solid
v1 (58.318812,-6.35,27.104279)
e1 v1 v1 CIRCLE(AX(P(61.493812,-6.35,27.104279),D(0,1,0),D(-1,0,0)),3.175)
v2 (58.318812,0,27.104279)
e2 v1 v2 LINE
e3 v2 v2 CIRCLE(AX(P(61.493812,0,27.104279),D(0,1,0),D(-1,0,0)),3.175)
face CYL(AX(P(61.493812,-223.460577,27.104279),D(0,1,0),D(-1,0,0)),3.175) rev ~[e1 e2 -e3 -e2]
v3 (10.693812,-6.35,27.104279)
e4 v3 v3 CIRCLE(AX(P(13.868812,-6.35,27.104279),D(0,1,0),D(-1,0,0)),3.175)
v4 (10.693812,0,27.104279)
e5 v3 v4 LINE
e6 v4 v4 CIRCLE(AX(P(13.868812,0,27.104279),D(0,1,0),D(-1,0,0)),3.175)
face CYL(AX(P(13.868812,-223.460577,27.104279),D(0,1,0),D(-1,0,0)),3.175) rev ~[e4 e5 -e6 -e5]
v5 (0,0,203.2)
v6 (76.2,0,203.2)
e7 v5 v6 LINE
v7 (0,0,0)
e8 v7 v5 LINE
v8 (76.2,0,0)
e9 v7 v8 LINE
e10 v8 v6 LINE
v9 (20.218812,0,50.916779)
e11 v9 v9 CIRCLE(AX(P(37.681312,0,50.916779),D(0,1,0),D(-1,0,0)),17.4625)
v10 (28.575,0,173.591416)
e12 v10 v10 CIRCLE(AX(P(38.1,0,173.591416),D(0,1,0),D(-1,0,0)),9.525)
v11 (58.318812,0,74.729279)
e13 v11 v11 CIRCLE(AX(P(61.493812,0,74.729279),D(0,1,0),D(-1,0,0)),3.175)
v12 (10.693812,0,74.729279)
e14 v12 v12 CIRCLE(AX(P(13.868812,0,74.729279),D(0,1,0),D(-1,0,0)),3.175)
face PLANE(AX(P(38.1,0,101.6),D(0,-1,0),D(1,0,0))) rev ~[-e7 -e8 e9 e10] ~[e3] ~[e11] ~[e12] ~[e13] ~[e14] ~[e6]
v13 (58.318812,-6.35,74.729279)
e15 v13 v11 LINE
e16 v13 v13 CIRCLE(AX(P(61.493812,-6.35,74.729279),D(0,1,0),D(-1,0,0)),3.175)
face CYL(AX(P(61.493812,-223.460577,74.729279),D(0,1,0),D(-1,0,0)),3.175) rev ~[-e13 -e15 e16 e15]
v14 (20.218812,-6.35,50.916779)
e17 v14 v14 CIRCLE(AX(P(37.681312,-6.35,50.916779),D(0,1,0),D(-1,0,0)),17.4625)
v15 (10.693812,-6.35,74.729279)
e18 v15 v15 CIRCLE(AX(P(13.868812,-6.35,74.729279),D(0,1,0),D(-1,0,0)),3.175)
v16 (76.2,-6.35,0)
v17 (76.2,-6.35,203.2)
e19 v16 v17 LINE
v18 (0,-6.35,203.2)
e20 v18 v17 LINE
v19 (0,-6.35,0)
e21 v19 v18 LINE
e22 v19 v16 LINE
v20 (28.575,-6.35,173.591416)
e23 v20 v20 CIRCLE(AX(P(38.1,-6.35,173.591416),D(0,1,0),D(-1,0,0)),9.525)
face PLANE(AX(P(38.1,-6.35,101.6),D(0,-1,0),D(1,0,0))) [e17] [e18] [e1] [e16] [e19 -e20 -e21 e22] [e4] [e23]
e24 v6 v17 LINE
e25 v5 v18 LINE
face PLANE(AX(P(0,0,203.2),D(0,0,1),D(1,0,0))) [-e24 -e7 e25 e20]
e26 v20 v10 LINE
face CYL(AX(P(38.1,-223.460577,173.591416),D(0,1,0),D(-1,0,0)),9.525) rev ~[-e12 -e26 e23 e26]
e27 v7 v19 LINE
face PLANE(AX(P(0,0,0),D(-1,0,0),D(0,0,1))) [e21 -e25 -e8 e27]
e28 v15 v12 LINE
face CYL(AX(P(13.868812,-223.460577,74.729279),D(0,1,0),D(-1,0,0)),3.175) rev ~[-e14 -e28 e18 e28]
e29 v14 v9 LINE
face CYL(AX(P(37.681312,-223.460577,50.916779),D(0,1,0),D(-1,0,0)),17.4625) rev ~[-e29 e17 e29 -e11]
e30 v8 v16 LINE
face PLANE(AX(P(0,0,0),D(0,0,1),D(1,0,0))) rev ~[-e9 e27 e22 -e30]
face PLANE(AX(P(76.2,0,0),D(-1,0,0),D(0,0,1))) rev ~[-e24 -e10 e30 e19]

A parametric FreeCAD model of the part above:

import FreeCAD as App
import Part
import Sketcher

V = App.Vector
Q = App.Units.Quantity


def add_polygon(sketch, points):
    """Adds a closed chain of lines whose ends are joined by coincident constraints."""
    first, n = sketch.GeometryCount, len(points)
    for a, b in zip(points, points[1:] + points[:1]):
        sketch.addGeometry(Part.LineSegment(App.Vector(*a, 0), App.Vector(*b, 0)), False)
    for i in range(n):
        sketch.addConstraint(Sketcher.Constraint("Coincident", first + i, 2, first + (i + 1) % n, 1))

doc = App.newDocument("Part")
body = doc.addObject("PartDesign::Body", "Body")

# Sketch on XZ plane
sketch1 = body.newObject("Sketcher::SketchObject", "Sketch")
sketch1.AttachmentSupport = (doc.getObject("XZ_Plane"), [""])
sketch1.MapMode = "FlatFace"
add_polygon(sketch1, [(0, 203), (0, 0), (76, 0), (76, 203)])  # lines 0-3
sketch1.addConstraint([
    Sketcher.Constraint("Vertical", 0),
    Sketcher.Constraint("Horizontal", 1),
    Sketcher.Constraint("Vertical", 2),
    Sketcher.Constraint("Horizontal", 3),
    Sketcher.Constraint("Coincident", 0, 2, -1, 1),
    Sketcher.Constraint("DistanceX", 1, 1, 1, 2, Q("3 in")),
    Sketcher.Constraint("DistanceY", 0, 2, 0, 1, Q("8 in")),
])
pad1 = body.newObject("PartDesign::Pad", "Pad")
pad1.Profile = sketch1
pad1.Length = Q("0.25 in")

# Sketch on XZ plane
sketch2 = body.newObject("Sketcher::SketchObject", "Sketch001")
sketch2.AttachmentSupport = (doc.getObject("XZ_Plane"), [""])
sketch2.MapMode = "FlatFace"
sketch2.AttachmentOffset = App.Placement(V(0, 0, 0.25 * 25.4), App.Rotation())
sketch2.addGeometry([
    Part.Circle(V(13.9, 74.7, 0), V(0, 0, 1), 3.2),
    Part.Circle(V(61.5, 74.7, 0), V(0, 0, 1), 3.2),
    Part.Circle(V(61.5, 27.1, 0), V(0, 0, 1), 3.2),
    Part.Circle(V(13.9, 27.1, 0), V(0, 0, 1), 3.2),
], False)
sketch2.addConstraint([
    Sketcher.Constraint("Equal", 0, 1),
    Sketcher.Constraint("Equal", 1, 2),
    Sketcher.Constraint("Equal", 2, 3),
    Sketcher.Constraint("Horizontal", 0, 3, 1, 3),
    Sketcher.Constraint("Horizontal", 2, 3, 3, 3),
    Sketcher.Constraint("Vertical", 1, 3, 2, 3),
    Sketcher.Constraint("Vertical", 0, 3, 3, 3),
    Sketcher.Constraint("Diameter", 0, Q("0.25 in")),
    Sketcher.Constraint("DistanceX", 0, 3, 1, 3, Q("1.875 in")),
    Sketcher.Constraint("DistanceY", 2, 3, 1, 3, Q("1.875 in")),
    Sketcher.Constraint("DistanceY", -1, 1, 0, 3, Q("74.729279 mm")),
    Sketcher.Constraint("DistanceX", -1, 1, 1, 3, Q("61.493812 mm")),
])
doc.recompute()
hole = body.newObject("PartDesign::Hole", "Hole")
hole.Profile = sketch2
hole.ThreadType = "None"
hole.Diameter = Q("0.25 in")
hole.DepthType = "ThroughAll"

# Sketch on XZ plane
sketch3 = body.newObject("Sketcher::SketchObject", "Sketch002")
sketch3.AttachmentSupport = (doc.getObject("XZ_Plane"), [""])
sketch3.MapMode = "FlatFace"
sketch3.AttachmentOffset = App.Placement(V(0, 0, 0.25 * 25.4), App.Rotation())
sketch3.addGeometry(Part.Circle(V(38, 174, 0), V(0, 0, 1), 10), False)
sketch3.addConstraint([
    Sketcher.Constraint("Diameter", 0, Q("0.75 in")),
    Sketcher.Constraint("DistanceX", -1, 1, 0, 3, Q("1.5 in")),
    Sketcher.Constraint("DistanceY", -1, 1, 0, 3, Q("173.591416 mm")),
])
doc.recompute()
hole2 = body.newObject("PartDesign::Hole", "Hole001")
hole2.Profile = sketch3
hole2.ThreadType = "None"
hole2.Diameter = Q("0.75 in")
hole2.DepthType = "ThroughAll"

# Sketch on XZ plane
sketch4 = body.newObject("Sketcher::SketchObject", "Sketch003")
sketch4.AttachmentSupport = (doc.getObject("XZ_Plane"), [""])
sketch4.MapMode = "FlatFace"
sketch4.AttachmentOffset = App.Placement(V(0, 0, 0.25 * 25.4), App.Rotation())
sketch4.addGeometry(Part.Circle(V(38, 51, 0), V(0, 0, 1), 17), False)
sketch4.addConstraint([
    Sketcher.Constraint("Diameter", 0, Q("1.375 in")),
    Sketcher.Constraint("DistanceX", -1, 1, 0, 3, Q("37.681312 mm")),
    Sketcher.Constraint("DistanceY", -1, 1, 0, 3, Q("50.916779 mm")),
])
doc.recompute()
hole3 = body.newObject("PartDesign::Hole", "Hole002")
hole3.Profile = sketch4
hole3.ThreadType = "None"
hole3.Diameter = Q("1.375 in")
hole3.DepthType = "ThroughAll"

doc.recompute()
